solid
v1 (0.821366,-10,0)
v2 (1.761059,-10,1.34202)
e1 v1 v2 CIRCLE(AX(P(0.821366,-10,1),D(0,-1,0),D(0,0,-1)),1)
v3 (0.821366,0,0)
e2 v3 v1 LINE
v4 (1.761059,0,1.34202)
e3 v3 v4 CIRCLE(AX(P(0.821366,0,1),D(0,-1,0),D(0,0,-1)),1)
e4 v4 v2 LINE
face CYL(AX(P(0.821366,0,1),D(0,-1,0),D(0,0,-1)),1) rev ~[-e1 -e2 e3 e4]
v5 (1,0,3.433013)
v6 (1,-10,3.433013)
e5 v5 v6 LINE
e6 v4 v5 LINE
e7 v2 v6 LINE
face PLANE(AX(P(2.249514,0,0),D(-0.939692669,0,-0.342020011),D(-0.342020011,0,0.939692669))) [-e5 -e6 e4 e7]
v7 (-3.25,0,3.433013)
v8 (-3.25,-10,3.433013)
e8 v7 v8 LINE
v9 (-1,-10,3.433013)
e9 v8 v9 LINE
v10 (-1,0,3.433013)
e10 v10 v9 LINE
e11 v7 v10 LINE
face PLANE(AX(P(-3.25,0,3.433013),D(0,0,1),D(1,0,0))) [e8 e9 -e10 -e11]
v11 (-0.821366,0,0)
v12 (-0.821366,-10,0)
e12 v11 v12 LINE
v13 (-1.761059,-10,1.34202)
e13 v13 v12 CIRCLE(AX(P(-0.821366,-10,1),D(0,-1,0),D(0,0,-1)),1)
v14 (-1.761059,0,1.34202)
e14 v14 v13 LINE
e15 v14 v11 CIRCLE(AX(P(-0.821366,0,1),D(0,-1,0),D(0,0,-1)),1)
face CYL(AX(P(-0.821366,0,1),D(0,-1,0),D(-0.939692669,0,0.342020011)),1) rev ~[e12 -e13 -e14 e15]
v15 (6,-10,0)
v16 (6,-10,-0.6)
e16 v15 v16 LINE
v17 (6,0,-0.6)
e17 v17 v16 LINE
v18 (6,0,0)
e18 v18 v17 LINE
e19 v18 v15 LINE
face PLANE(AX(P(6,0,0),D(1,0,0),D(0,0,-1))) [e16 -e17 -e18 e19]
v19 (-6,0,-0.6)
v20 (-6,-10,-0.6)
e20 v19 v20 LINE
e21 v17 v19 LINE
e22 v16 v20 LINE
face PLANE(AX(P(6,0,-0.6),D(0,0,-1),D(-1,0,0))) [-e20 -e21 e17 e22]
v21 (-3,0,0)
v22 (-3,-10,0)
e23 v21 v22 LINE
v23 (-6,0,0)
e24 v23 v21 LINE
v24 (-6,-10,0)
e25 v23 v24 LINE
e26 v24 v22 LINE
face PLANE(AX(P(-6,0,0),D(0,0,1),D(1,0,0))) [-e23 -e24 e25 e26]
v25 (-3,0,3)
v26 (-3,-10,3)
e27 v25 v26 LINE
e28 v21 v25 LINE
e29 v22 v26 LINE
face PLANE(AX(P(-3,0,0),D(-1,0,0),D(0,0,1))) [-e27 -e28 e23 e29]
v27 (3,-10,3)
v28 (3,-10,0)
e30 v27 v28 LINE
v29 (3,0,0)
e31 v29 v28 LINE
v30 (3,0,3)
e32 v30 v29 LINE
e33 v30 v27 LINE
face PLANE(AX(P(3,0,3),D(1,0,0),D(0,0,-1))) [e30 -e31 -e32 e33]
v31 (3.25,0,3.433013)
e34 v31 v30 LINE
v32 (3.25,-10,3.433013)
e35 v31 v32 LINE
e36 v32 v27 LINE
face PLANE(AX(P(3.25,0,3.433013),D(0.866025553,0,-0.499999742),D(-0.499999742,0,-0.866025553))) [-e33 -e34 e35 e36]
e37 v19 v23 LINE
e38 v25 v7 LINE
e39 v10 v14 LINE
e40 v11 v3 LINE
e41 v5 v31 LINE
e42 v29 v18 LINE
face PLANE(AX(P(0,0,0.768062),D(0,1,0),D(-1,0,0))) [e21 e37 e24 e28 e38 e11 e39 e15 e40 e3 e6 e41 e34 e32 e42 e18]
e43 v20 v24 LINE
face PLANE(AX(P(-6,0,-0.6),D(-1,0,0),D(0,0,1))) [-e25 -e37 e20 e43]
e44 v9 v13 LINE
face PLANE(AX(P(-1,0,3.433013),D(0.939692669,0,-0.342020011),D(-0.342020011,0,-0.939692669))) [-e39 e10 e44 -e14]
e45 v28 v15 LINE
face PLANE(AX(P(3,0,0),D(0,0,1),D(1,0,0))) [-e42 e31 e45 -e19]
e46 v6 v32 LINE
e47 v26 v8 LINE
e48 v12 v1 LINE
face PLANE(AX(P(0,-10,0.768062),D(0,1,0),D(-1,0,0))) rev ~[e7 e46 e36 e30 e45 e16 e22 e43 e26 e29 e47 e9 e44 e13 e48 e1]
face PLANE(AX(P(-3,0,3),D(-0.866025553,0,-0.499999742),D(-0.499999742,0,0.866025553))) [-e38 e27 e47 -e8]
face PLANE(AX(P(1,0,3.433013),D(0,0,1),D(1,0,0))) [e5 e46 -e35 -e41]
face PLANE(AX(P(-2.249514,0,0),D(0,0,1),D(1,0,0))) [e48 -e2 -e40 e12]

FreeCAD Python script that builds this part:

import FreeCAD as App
import Part
import Sketcher
Q = App.Units.Quantity


def edges_at(feature, points):
    """Names of the edges that pass closest to the given points."""
    edges = feature.Shape.Edges
    near = lambda p: min(range(len(edges)), key=lambda i: edges[i].distToShape(Part.Vertex(*p))[0])
    return sorted({f"Edge{near(p) + 1}" for p in points})


def add_polygon(sketch, points):
    """Adds a closed chain of lines whose ends are joined by coincident constraints."""
    first, n = sketch.GeometryCount, len(points)
    for a, b in zip(points, points[1:] + points[:1]):
        sketch.addGeometry(Part.LineSegment(App.Vector(*a, 0), App.Vector(*b, 0)), False)
    for i in range(n):
        sketch.addConstraint(Sketcher.Constraint("Coincident", first + i, 2, first + (i + 1) % n, 1))

doc = App.newDocument("Part")
body = doc.addObject("PartDesign::Body", "Body")

# Sketch on XZ plane
sketch1 = doc.addObject("Sketcher::SketchObject", "Sketch")
body.addObject(sketch1)
sketch1.AttachmentSupport = (doc.XZ_Plane, [""])
sketch1.MapMode = "FlatFace"
add_polygon(sketch1, [(-3, 3), (-3, 0), (-6, 0), (-6, -0.6), (6, -0.6), (6, 0), (3, 0), (3, 3), (3.2, 3.4), (1, 3.4), (2.2, 0), (-2.2, 0), (-1, 3.4), (-3.2, 3.4)])  # lines 0-13
sketch1.addConstraint(Sketcher.Constraint("Vertical", 0))
sketch1.addConstraint(Sketcher.Constraint("Horizontal", 1))
sketch1.addConstraint(Sketcher.Constraint("Vertical", 2))
sketch1.addConstraint(Sketcher.Constraint("Horizontal", 3))
sketch1.addConstraint(Sketcher.Constraint("Vertical", 4))
sketch1.addConstraint(Sketcher.Constraint("Horizontal", 5))
sketch1.addConstraint(Sketcher.Constraint("Vertical", 6))
sketch1.addConstraint(Sketcher.Constraint("Horizontal", 8))
sketch1.addConstraint(Sketcher.Constraint("Horizontal", 10))
sketch1.addConstraint(Sketcher.Constraint("Horizontal", 12))
sketch1.addConstraint(Sketcher.Constraint("Symmetric", 1, 2, 4, 2, -1, 1))
sketch1.addConstraint(Sketcher.Constraint("Symmetric", 9, 2, 10, 2, -1, 1))
sketch1.addConstraint(Sketcher.Constraint("Symmetric", 0, 2, 5, 2, -2))
sketch1.addConstraint(Sketcher.Constraint("Symmetric", 8, 2, 11, 2, -2))
sketch1.addConstraint(Sketcher.Constraint("Horizontal", 6, 2, 13, 2))
sketch1.addConstraint(Sketcher.Constraint("Equal", 8, 12))
sketch1.addConstraint(Sketcher.Constraint("Equal", 5, 0))
sketch1.addConstraint(Sketcher.Constraint("DistanceX", 1, 2, 1, 1, 3.0))
sketch1.addConstraint(Sketcher.Constraint("DistanceX", 3, 1, 3, 2, 12.0))
sketch1.addConstraint(Sketcher.Constraint("Angle", 7, Q("60.000017 deg")))
sketch1.addConstraint(Sketcher.Constraint("Angle", 9, Q("-70.000008 deg")))
sketch1.addConstraint(Sketcher.Constraint("DistanceY", 2, 2, 2, 1, 0.6))
sketch1.addConstraint(Sketcher.Constraint("DistanceX", -1, 1, 8, 2, 1.0))
sketch1.addConstraint(Sketcher.Constraint("Distance", 7, 0.5))
pad1 = doc.addObject("PartDesign::Pad", "Pad")
body.addObject(pad1)
pad1.Profile = sketch1
pad1.Length = 10
doc.recompute()

fillet = doc.addObject("PartDesign::Fillet", "Fillet")
body.addObject(fillet)
fillet.Base = (pad1, edges_at(pad1, [(-2.25, -5, 0), (2.25, -5, 0)]))
fillet.Radius = 1

doc.recompute()
